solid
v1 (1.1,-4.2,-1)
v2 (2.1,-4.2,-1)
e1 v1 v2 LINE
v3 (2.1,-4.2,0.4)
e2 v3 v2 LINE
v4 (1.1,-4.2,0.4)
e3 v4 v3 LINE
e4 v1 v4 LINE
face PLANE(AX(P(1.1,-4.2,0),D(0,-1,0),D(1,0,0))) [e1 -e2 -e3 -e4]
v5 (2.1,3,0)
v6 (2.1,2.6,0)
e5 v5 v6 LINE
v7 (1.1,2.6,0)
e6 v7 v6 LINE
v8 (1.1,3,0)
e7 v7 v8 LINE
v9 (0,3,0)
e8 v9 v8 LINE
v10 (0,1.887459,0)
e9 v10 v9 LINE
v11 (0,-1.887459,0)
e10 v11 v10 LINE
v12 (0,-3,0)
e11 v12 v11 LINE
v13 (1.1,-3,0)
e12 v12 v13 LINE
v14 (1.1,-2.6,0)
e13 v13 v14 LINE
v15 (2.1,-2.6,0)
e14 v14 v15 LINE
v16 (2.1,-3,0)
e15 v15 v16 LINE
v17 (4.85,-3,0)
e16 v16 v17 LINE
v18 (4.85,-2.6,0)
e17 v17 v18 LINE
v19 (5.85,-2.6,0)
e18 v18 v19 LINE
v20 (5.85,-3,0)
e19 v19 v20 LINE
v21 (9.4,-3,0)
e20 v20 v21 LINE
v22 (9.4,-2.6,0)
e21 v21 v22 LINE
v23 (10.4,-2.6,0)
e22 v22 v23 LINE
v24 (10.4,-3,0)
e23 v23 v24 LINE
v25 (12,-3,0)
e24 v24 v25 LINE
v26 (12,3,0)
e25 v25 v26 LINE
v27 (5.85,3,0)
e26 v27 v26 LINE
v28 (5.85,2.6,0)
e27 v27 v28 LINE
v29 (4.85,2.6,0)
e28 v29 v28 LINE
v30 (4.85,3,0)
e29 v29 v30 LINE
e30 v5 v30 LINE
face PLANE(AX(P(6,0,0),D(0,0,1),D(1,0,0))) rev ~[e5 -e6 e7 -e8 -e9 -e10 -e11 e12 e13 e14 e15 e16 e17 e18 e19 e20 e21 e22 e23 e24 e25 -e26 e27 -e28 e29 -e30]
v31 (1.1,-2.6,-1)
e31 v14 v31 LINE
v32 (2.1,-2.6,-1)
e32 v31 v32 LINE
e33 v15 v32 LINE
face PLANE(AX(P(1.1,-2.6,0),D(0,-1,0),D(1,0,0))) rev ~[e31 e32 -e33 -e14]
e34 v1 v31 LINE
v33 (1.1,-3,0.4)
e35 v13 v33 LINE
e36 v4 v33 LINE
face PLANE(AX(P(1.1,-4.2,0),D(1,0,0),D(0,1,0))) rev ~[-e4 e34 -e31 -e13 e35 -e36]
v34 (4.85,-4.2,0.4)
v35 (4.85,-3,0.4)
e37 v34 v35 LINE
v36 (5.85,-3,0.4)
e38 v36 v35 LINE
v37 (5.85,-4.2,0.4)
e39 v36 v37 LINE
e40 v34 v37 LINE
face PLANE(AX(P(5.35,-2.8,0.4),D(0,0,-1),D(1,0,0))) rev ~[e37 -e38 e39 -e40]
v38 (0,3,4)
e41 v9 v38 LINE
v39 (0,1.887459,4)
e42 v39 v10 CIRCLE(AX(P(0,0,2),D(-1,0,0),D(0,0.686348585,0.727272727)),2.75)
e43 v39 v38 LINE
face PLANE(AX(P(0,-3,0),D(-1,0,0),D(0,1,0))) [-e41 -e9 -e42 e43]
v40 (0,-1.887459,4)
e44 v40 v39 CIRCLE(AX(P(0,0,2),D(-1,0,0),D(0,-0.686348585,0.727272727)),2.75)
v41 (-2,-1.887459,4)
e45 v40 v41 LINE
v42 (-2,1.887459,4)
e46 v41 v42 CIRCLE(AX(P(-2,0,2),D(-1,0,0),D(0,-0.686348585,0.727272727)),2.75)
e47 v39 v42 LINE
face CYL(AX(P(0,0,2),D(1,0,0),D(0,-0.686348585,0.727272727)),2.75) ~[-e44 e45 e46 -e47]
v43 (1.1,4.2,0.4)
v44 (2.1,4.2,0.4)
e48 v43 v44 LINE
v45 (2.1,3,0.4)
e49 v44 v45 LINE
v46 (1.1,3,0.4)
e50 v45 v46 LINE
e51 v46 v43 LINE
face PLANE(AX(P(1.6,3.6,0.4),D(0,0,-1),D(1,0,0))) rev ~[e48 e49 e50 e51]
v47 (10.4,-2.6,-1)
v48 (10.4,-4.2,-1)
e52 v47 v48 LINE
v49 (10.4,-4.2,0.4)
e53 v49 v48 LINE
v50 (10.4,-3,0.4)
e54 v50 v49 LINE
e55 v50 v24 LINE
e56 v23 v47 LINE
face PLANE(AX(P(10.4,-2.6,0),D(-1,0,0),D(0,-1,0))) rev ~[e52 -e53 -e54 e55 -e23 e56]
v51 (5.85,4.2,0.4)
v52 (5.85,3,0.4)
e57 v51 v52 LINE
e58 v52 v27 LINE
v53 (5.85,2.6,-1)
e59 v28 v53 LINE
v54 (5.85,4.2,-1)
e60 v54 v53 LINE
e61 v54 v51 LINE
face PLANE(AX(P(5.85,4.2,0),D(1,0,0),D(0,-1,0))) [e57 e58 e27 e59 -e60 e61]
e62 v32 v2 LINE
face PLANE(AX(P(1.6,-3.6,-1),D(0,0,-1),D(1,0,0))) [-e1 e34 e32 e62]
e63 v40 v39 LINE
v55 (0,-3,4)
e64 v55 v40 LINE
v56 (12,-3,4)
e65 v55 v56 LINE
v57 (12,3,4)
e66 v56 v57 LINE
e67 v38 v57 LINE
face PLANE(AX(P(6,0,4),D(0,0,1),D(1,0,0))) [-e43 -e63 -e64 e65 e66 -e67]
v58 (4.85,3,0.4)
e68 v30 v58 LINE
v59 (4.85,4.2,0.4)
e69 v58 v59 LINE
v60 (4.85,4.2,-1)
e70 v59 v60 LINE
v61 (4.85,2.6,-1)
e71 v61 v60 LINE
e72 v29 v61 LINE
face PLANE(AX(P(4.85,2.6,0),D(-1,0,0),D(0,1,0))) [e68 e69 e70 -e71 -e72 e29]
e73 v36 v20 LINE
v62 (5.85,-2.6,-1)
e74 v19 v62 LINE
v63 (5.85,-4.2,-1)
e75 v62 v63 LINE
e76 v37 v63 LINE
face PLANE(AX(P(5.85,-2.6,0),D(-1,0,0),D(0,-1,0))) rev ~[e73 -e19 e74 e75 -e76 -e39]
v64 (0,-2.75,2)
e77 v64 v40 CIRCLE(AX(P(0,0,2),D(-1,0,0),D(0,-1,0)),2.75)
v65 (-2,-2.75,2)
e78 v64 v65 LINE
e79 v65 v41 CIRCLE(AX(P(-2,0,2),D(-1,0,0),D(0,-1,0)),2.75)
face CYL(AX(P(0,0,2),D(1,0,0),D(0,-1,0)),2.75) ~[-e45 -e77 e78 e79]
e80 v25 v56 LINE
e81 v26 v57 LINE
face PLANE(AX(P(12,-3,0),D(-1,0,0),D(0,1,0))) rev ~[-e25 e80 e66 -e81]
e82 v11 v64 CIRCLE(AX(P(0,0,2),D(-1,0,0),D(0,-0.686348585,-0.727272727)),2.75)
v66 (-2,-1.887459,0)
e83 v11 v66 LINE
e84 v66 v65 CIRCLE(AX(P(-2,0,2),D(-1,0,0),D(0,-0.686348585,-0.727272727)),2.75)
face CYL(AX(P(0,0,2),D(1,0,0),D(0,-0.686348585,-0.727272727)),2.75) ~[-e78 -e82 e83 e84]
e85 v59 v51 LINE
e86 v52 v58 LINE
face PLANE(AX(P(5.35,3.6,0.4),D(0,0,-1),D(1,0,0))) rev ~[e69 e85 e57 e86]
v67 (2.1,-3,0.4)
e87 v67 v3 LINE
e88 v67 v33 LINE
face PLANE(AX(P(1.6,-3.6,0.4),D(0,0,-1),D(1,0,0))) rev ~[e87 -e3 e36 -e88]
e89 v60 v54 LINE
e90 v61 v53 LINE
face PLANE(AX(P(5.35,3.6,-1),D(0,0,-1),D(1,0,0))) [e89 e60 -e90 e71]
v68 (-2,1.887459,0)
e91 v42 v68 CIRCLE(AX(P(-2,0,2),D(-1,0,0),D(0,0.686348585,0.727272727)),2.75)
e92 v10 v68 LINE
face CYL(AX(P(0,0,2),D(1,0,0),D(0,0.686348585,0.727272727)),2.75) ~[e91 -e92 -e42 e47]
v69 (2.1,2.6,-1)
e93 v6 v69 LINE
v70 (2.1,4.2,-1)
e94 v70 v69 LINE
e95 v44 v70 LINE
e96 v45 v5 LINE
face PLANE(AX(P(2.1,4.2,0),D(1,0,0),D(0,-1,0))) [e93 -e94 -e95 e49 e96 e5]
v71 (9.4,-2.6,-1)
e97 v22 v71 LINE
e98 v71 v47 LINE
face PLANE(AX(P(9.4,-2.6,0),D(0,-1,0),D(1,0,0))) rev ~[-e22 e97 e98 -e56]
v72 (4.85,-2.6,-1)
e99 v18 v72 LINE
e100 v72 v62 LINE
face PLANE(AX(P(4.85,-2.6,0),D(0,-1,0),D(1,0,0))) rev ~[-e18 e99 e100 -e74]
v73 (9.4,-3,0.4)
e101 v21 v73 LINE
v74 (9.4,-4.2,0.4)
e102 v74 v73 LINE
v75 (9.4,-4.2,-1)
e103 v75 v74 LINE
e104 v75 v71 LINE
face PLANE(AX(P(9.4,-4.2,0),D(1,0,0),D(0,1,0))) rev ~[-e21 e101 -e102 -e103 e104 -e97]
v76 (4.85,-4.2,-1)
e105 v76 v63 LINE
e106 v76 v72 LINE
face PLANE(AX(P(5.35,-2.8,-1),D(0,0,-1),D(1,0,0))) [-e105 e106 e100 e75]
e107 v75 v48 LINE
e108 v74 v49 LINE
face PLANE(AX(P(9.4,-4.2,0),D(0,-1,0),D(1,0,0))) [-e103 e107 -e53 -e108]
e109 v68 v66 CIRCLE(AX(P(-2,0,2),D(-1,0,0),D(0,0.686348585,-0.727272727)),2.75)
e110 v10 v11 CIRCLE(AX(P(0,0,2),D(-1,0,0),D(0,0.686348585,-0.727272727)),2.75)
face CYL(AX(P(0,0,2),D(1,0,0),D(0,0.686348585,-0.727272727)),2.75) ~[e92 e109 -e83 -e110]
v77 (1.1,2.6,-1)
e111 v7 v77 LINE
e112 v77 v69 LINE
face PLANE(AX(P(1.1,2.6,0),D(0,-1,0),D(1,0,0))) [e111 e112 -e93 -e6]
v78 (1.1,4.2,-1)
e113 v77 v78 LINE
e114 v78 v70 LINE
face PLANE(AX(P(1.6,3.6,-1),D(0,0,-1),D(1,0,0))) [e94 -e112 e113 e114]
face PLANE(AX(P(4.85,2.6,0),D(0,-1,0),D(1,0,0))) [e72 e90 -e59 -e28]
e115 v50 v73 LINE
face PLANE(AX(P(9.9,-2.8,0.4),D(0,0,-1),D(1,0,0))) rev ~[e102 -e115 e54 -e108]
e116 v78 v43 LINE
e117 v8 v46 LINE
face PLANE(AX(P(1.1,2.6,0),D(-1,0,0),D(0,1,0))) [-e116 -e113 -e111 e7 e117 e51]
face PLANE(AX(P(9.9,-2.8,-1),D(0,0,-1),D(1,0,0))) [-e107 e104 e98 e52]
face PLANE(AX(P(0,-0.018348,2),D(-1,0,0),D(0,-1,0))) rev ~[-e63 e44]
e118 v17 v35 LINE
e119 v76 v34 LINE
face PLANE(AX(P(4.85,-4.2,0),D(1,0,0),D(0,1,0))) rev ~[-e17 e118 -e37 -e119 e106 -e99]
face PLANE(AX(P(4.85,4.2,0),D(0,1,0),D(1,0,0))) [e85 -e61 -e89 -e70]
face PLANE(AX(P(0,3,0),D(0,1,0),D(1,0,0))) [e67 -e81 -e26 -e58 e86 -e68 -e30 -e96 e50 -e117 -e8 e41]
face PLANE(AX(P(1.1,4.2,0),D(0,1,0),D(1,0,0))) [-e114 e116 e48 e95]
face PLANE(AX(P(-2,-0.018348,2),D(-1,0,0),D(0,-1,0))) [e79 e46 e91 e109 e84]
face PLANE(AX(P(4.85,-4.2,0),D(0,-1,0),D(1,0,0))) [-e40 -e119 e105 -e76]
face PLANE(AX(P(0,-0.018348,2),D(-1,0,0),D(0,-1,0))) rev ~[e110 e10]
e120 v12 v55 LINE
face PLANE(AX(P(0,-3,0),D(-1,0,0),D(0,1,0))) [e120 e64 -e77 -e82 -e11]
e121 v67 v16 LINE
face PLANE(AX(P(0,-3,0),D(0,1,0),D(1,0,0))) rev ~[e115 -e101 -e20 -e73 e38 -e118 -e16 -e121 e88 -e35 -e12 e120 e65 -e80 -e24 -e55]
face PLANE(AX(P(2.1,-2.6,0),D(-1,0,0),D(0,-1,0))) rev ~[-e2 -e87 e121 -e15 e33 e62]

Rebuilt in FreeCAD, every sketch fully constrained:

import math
import FreeCAD as App
import Part
import Sketcher
from FreeCAD import Vector


def add_polygon(sketch, points):
    """Adds a closed chain of lines whose ends are joined by coincident constraints."""
    first, n = sketch.GeometryCount, len(points)
    for a, b in zip(points, points[1:] + points[:1]):
        sketch.addGeometry(Part.LineSegment(App.Vector(*a, 0), App.Vector(*b, 0)), False)
    for i in range(n):
        sketch.addConstraint(Sketcher.Constraint("Coincident", first + i, 2, first + (i + 1) % n, 1))

doc = App.newDocument("Part")
body = doc.addObject("PartDesign::Body", "Body")

# Sketch on XY plane
sketch1 = body.newObject("Sketcher::SketchObject", "Sketch")
sketch1.AttachmentSupport = (doc.getObject("XY_Plane"), [""])
sketch1.MapMode = "FlatFace"
add_polygon(sketch1, [(0, 3), (0, -3), (12, -3), (12, 3)])  # lines 0-3
sketch1.addConstraint([
    Sketcher.Constraint("Vertical", 0),
    Sketcher.Constraint("Horizontal", 1),
    Sketcher.Constraint("Vertical", 2),
    Sketcher.Constraint("Horizontal", 3),
    Sketcher.Constraint("Symmetric", 0, 2, 3, 2, -1, 1),
    Sketcher.Constraint("DistanceX", 1, 1, 1, 2, 12.0),
    Sketcher.Constraint("DistanceY", 0, 2, 0, 1, 6.0),
])
pad1 = body.newObject("PartDesign::Pad", "Pad")
pad1.Profile = sketch1
pad1.Length = 4

# Sketch on YZ plane
sketch2 = body.newObject("Sketcher::SketchObject", "Sketch001")
sketch2.AttachmentSupport = (doc.getObject("YZ_Plane"), [""])
sketch2.MapMode = "FlatFace"
sketch2.addGeometry([
    Part.ArcOfCircle(Part.Circle(Vector(0, 2, 0), Vector(0, 0, 1), 2.8), math.radians(180), math.radians(227)),  # 0
    Part.ArcOfCircle(Part.Circle(Vector(0, 2, 0), Vector(0, 0, 1), 2.8), math.radians(133), math.radians(180)),  # 1
    Part.ArcOfCircle(Part.Circle(Vector(0, 2, 0), Vector(0, 0, 1), 2.8), math.radians(47), math.radians(133)),  # 2
    Part.ArcOfCircle(Part.Circle(Vector(0, 2, 0), Vector(0, 0, 1), 2.8), math.radians(-47), math.radians(47)),  # 3
    Part.ArcOfCircle(Part.Circle(Vector(0, 2, 0), Vector(0, 0, 1), 2.8), math.radians(-133), math.radians(-47)),  # 4
], False)
sketch2.addConstraint([
    Sketcher.Constraint("Tangent", 0, 1, 1, 2),
    Sketcher.Constraint("Tangent", 1, 1, 2, 2),
    Sketcher.Constraint("Tangent", 2, 1, 3, 2),
    Sketcher.Constraint("Tangent", 3, 1, 4, 2),
    Sketcher.Constraint("Tangent", 4, 1, 0, 2),
    Sketcher.Constraint("Coincident", 2, 3, 0, 3),
    Sketcher.Constraint("Symmetric", 3, 1, 4, 1, -1, 1),
    Sketcher.Constraint("Symmetric", 1, 1, 2, 1, -2),
    Sketcher.Constraint("Horizontal", 4, 3, 0, 1),
    Sketcher.Constraint("Vertical", 2, 1, 3, 1),
    Sketcher.Constraint("Radius", 0, 2.75),
    Sketcher.Constraint("DistanceY", -1, 1, 0, 3, 2.0),
])
pad2 = body.newObject("PartDesign::Pad", "Pad001")
pad2.Profile = sketch2
pad2.Length = 2
pad2.Reversed = True

# Sketch on XY plane
sketch3 = body.newObject("Sketcher::SketchObject", "Sketch002")
sketch3.AttachmentSupport = (doc.getObject("XY_Plane"), [""])
sketch3.MapMode = "FlatFace"
add_polygon(sketch3, [(1.1, 4.2), (2.1, 4.2), (2.1, 2.6), (1.1, 2.6)])  # lines 0-3
add_polygon(sketch3, [(1.1, -4.2), (1.1, -2.6), (2.1, -2.6), (2.1, -4.2)])  # lines 4-7
add_polygon(sketch3, [(4.8, -2.6), (5.8, -2.6), (5.8, -4.2), (4.8, -4.2)])  # lines 8-11
add_polygon(sketch3, [(4.8, 4.2), (5.8, 4.2), (5.8, 2.6), (4.8, 2.6)])  # lines 12-15
add_polygon(sketch3, [(9.4, -2.6), (10.4, -2.6), (10.4, -4.2), (9.4, -4.2)])  # lines 16-19
sketch3.addConstraint([
    Sketcher.Constraint("Horizontal", 0),
    Sketcher.Constraint("Vertical", 1),
    Sketcher.Constraint("Horizontal", 2),
    Sketcher.Constraint("Vertical", 3),
    Sketcher.Constraint("Vertical", 4),
    Sketcher.Constraint("Horizontal", 5),
    Sketcher.Constraint("Vertical", 6),
    Sketcher.Constraint("Horizontal", 7),
    Sketcher.Constraint("Horizontal", 8),
    Sketcher.Constraint("Vertical", 9),
    Sketcher.Constraint("Horizontal", 10),
    Sketcher.Constraint("Vertical", 11),
    Sketcher.Constraint("Horizontal", 12),
    Sketcher.Constraint("Vertical", 13),
    Sketcher.Constraint("Horizontal", 14),
    Sketcher.Constraint("Vertical", 15),
    Sketcher.Constraint("Horizontal", 16),
    Sketcher.Constraint("Vertical", 17),
    Sketcher.Constraint("Horizontal", 18),
    Sketcher.Constraint("Vertical", 19),
    Sketcher.Constraint("Symmetric", 2, 2, 4, 2, -1),
    Sketcher.Constraint("Symmetric", 0, 2, 6, 2, -1),
    Sketcher.Constraint("Symmetric", 9, 2, 12, 2, -1),
    Sketcher.Constraint("Symmetric", 11, 2, 14, 2, -1),
    Sketcher.Constraint("Horizontal", 5, 2, 8, 2),
    Sketcher.Constraint("Horizontal", 7, 2, 9, 2),
    Sketcher.Constraint("Horizontal", 11, 2, 16, 2),
    Sketcher.Constraint("Horizontal", 10, 2, 17, 2),
    Sketcher.Constraint("Equal", 7, 8),
    Sketcher.Constraint("Equal", 14, 16),
    Sketcher.Constraint("DistanceX", 0, 1, 0, 2, 1.0),
    Sketcher.Constraint("DistanceY", 1, 2, 1, 1, 1.6),
    Sketcher.Constraint("DistanceX", -1, 1, 0, 2, 2.1),
    Sketcher.Constraint("DistanceY", -1, 1, 0, 2, 4.2),
    Sketcher.Constraint("DistanceX", -1, 1, 16, 2, 10.4),
    Sketcher.Constraint("DistanceX", -1, 1, 8, 2, 5.85),
])
pad3 = body.newObject("PartDesign::Pad", "Pad002")
pad3.Profile = sketch3
pad3.Type = "TwoLengths"
pad3.Length = 1
pad3.Length2 = 0.4
pad3.Reversed = True

doc.recompute()
